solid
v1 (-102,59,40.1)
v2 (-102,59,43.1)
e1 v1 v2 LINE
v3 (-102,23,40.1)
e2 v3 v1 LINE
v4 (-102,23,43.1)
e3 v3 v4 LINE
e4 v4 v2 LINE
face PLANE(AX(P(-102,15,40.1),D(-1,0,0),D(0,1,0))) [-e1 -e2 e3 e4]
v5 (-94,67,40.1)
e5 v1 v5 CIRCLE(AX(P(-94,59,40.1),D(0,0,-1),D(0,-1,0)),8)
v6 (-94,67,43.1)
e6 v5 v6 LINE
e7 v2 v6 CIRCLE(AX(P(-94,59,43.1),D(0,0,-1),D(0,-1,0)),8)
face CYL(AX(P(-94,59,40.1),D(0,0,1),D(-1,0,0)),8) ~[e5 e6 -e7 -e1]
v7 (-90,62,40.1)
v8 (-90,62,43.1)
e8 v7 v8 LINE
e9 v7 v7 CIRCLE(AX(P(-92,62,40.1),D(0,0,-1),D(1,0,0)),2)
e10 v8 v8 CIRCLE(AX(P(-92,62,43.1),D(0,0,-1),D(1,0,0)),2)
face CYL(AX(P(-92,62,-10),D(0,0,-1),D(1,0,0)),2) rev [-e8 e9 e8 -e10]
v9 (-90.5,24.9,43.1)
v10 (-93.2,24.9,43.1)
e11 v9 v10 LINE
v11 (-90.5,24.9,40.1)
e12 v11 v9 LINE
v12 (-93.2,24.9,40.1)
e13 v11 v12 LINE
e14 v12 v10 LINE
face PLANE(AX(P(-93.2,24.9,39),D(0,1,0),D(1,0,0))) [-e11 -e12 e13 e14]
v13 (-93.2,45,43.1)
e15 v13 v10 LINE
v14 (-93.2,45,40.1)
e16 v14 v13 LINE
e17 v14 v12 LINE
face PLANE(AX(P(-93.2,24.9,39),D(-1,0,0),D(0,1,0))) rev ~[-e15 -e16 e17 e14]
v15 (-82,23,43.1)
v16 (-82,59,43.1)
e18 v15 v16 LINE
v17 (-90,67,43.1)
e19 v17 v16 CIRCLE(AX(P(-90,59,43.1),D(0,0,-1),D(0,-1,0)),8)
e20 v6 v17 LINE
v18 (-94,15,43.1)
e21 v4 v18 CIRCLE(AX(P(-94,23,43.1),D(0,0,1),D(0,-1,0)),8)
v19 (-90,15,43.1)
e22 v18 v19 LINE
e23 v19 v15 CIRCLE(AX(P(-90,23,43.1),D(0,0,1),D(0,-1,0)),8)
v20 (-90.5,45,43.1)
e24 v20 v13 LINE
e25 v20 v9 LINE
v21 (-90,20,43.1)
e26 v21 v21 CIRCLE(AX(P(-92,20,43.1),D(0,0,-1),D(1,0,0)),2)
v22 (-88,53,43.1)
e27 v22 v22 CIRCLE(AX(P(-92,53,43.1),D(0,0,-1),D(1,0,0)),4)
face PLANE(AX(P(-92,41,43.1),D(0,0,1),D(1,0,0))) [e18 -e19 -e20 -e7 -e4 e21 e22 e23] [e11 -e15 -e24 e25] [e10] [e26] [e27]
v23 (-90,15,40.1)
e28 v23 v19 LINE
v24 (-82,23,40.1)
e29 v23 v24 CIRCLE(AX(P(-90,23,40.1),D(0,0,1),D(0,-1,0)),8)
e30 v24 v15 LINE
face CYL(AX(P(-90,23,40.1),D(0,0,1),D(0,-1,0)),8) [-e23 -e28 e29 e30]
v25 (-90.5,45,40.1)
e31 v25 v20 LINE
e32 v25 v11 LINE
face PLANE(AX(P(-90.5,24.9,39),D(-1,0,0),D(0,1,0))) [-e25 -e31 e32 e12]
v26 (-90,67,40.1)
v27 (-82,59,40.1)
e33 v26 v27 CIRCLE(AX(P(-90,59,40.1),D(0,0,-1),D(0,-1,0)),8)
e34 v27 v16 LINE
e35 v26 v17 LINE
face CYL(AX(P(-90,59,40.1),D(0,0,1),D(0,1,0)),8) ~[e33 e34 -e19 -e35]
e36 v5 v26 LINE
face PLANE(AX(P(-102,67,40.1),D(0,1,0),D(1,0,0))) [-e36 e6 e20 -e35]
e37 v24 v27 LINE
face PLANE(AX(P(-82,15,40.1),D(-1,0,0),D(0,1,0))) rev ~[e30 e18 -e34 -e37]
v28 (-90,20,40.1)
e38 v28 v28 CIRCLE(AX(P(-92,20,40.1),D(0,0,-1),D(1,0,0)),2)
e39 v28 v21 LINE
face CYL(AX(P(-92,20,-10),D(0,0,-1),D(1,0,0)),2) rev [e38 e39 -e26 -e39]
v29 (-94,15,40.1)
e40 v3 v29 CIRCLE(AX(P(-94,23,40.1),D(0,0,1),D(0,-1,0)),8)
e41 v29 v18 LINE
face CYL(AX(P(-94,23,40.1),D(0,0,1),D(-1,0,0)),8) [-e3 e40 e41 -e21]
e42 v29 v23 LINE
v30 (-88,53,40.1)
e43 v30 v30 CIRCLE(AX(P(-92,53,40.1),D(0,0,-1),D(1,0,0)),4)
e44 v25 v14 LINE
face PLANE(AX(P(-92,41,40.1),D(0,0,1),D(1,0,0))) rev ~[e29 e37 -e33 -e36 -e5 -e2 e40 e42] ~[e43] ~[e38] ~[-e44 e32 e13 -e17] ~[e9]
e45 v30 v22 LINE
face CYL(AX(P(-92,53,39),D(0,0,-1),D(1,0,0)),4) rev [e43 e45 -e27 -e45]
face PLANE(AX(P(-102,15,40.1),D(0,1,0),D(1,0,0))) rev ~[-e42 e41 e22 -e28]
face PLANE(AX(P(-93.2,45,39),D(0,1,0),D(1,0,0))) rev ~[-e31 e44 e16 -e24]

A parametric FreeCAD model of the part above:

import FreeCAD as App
import Part
import Sketcher


def edges_at(feature, points):
    """Names of the edges that pass closest to the given points."""
    edges = feature.Shape.Edges
    near = lambda p: min(range(len(edges)), key=lambda i: edges[i].distToShape(Part.Vertex(*p))[0])
    return sorted({f"Edge{near(p) + 1}" for p in points})

doc = App.newDocument("Part")
params = doc.addObject("Spreadsheet::Sheet", "Params")
for row, (alias, value) in enumerate([
    ("sketch1_diameter", "4 mm"),
    ("pad1_length", "65 mm"),
    ("sketch2_diameter", "4 mm"),
    ("pad2_length", "65 mm"),
    ("sketch3_diameter", "8 mm"),
    ("pad3_length", "5 mm"),
    ("sketch4_width", "2.7 mm"),
    ("sketch4_height", "20.1 mm"),
    ("pad4_length", "5 mm"),
    ("sketch5_width", "20 mm"),
    ("sketch5_height", "52 mm"),
    ("pad5_length", "3 mm"),
    ("fillet_radius", "8 mm"),
], start=1):
    params.set(f"A{row}", alias)
    params.set(f"B{row}", "=" + value)
    params.setAlias(f"B{row}", alias)

body = doc.addObject("PartDesign::Body", "Body")

# Sketch on XY plane
sketch1 = body.newObject("Sketcher::SketchObject", "Sketch")
sketch1.AttachmentSupport = (doc.getObject("XY_Plane"), [""])
sketch1.MapMode = "FlatFace"
sketch1.AttachmentOffset = App.Placement(App.Vector(0, 0, -10), App.Rotation())
sketch1.addGeometry(Part.Circle(App.Vector(-90, -103, 0), App.Vector(0, 0, 1), 2), False)
sketch1.addConstraint(Sketcher.Constraint("Diameter", 0, 4.0))
sketch1.addConstraint(Sketcher.Constraint("DistanceX", 0, 3, -1, 1, 90.0))
sketch1.addConstraint(Sketcher.Constraint("DistanceY", 0, 3, -1, 1, 103.0))
sketch1.setExpression("Constraints[0]", "Params.sketch1_diameter")
pad1 = body.newObject("PartDesign::Pad", "Pad")
pad1.Profile = sketch1
pad1.setExpression("Length", "Params.pad1_length")
body2 = doc.addObject("PartDesign::Body", "Body001")
body2.AllowCompound = True

# Sketch on XY plane
sketch2 = body2.newObject("Sketcher::SketchObject", "Sketch001")
sketch2.AttachmentSupport = (doc.getObject("XY_Plane001"), [""])
sketch2.MapMode = "FlatFace"
sketch2.AttachmentOffset = App.Placement(App.Vector(0, 0, -10), App.Rotation())
sketch2.addGeometry(Part.Circle(App.Vector(-90, -61, 0), App.Vector(0, 0, 1), 2), False)
sketch2.addConstraint(Sketcher.Constraint("Diameter", 0, 4.0))
sketch2.addConstraint(Sketcher.Constraint("DistanceX", 0, 3, -1, 1, 90.0))
sketch2.addConstraint(Sketcher.Constraint("DistanceY", 0, 3, -1, 1, 61.0))
sketch2.setExpression("Constraints[0]", "Params.sketch2_diameter")
pad2 = body2.newObject("PartDesign::Pad", "Pad001")
pad2.Profile = sketch2
pad2.setExpression("Length", "Params.pad2_length")
doc.recompute()

boolean = body2.newObject("PartDesign::Boolean", "Boolean")
boolean.Type = "Fuse"
boolean.addObjects([body])
body3 = doc.addObject("PartDesign::Body", "Body002")
body3.AllowCompound = True
doc.recompute()

body2.Placement = App.Placement(App.Vector(-2, 0, 0), App.Rotation(App.Vector(0, 0, 1), 0))
boolean2 = body3.newObject("PartDesign::Boolean", "Boolean001")
boolean2.Type = "Fuse"
boolean2.addObjects([body2])
body4 = doc.addObject("PartDesign::Body", "Body003")

# Sketch on XY plane
sketch3 = body4.newObject("Sketcher::SketchObject", "Sketch002")
sketch3.AttachmentSupport = (doc.getObject("XY_Plane003"), [""])
sketch3.MapMode = "FlatFace"
sketch3.AttachmentOffset = App.Placement(App.Vector(0, 0, 39), App.Rotation())
sketch3.addGeometry(Part.Circle(App.Vector(-92, -70, 0), App.Vector(0, 0, 1), 4), False)
sketch3.addConstraint(Sketcher.Constraint("Diameter", 0, 8.0))
sketch3.addConstraint(Sketcher.Constraint("DistanceX", 0, 3, -1, 1, 92.0))
sketch3.addConstraint(Sketcher.Constraint("DistanceY", 0, 3, -1, 1, 70.0))
sketch3.setExpression("Constraints[0]", "Params.sketch3_diameter")
pad3 = body4.newObject("PartDesign::Pad", "Pad002")
pad3.Profile = sketch3
pad3.setExpression("Length", "Params.pad3_length")
body5 = doc.addObject("PartDesign::Body", "Body004")

# Sketch on XY plane
sketch4 = body5.newObject("Sketcher::SketchObject", "Sketch003")
sketch4.AttachmentSupport = (doc.getObject("XY_Plane004"), [""])
sketch4.MapMode = "FlatFace"
sketch4.AttachmentOffset = App.Placement(App.Vector(0, 0, 39), App.Rotation())
sketch4.addGeometry(Part.LineSegment(App.Vector(-93.2, -78, 0), App.Vector(-93.2, -98.1, 0)), False)
sketch4.addGeometry(Part.LineSegment(App.Vector(-93.2, -98.1, 0), App.Vector(-90.5, -98.1, 0)), False)
sketch4.addGeometry(Part.LineSegment(App.Vector(-90.5, -98.1, 0), App.Vector(-90.5, -78, 0)), False)
sketch4.addGeometry(Part.LineSegment(App.Vector(-90.5, -78, 0), App.Vector(-93.2, -78, 0)), False)
sketch4.addConstraint(Sketcher.Constraint("Coincident", 0, 2, 1, 1))
sketch4.addConstraint(Sketcher.Constraint("Coincident", 1, 2, 2, 1))
sketch4.addConstraint(Sketcher.Constraint("Coincident", 2, 2, 3, 1))
sketch4.addConstraint(Sketcher.Constraint("Coincident", 3, 2, 0, 1))
sketch4.addConstraint(Sketcher.Constraint("Vertical", 0))
sketch4.addConstraint(Sketcher.Constraint("Horizontal", 1))
sketch4.addConstraint(Sketcher.Constraint("Vertical", 2))
sketch4.addConstraint(Sketcher.Constraint("Horizontal", 3))
sketch4.addConstraint(Sketcher.Constraint("DistanceX", 1, 1, 1, 2, 2.7))
sketch4.addConstraint(Sketcher.Constraint("DistanceY", 0, 2, 0, 1, 20.1))
sketch4.addConstraint(Sketcher.Constraint("DistanceY", 2, 2, -1, 1, 78.0))
sketch4.addConstraint(Sketcher.Constraint("DistanceX", 0, 2, -1, 1, 93.2))
sketch4.setExpression("Constraints[8]", "Params.sketch4_width")
sketch4.setExpression("Constraints[9]", "Params.sketch4_height")
pad4 = body5.newObject("PartDesign::Pad", "Pad003")
pad4.Profile = sketch4
pad4.setExpression("Length", "Params.pad4_length")
body6 = doc.addObject("PartDesign::Body", "Body005")

# Sketch on XY plane
sketch5 = body6.newObject("Sketcher::SketchObject", "Sketch004")
sketch5.AttachmentSupport = (doc.getObject("XY_Plane005"), [""])
sketch5.MapMode = "FlatFace"
sketch5.AttachmentOffset = App.Placement(App.Vector(0, 0, 40.1), App.Rotation())
sketch5.addGeometry(Part.LineSegment(App.Vector(-102, -56, 0), App.Vector(-102, -108, 0)), False)
sketch5.addGeometry(Part.LineSegment(App.Vector(-102, -108, 0), App.Vector(-82, -108, 0)), False)
sketch5.addGeometry(Part.LineSegment(App.Vector(-82, -108, 0), App.Vector(-82, -56, 0)), False)
sketch5.addGeometry(Part.LineSegment(App.Vector(-82, -56, 0), App.Vector(-102, -56, 0)), False)
sketch5.addConstraint(Sketcher.Constraint("Coincident", 0, 2, 1, 1))
sketch5.addConstraint(Sketcher.Constraint("Coincident", 1, 2, 2, 1))
sketch5.addConstraint(Sketcher.Constraint("Coincident", 2, 2, 3, 1))
sketch5.addConstraint(Sketcher.Constraint("Coincident", 3, 2, 0, 1))
sketch5.addConstraint(Sketcher.Constraint("Vertical", 0))
sketch5.addConstraint(Sketcher.Constraint("Horizontal", 1))
sketch5.addConstraint(Sketcher.Constraint("Vertical", 2))
sketch5.addConstraint(Sketcher.Constraint("Horizontal", 3))
sketch5.addConstraint(Sketcher.Constraint("DistanceX", 1, 1, 1, 2, 20.0))
sketch5.addConstraint(Sketcher.Constraint("DistanceY", 0, 2, 0, 1, 52.0))
sketch5.addConstraint(Sketcher.Constraint("DistanceX", 0, 2, -1, 1, 102.0))
sketch5.addConstraint(Sketcher.Constraint("DistanceY", 0, 2, -1, 1, 108.0))
sketch5.setExpression("Constraints[8]", "Params.sketch5_width")
sketch5.setExpression("Constraints[9]", "Params.sketch5_height")
pad5 = body6.newObject("PartDesign::Pad", "Pad004")
pad5.Profile = sketch5
pad5.setExpression("Length", "Params.pad5_length")
doc.recompute()

boolean3 = body6.newObject("PartDesign::Boolean", "Boolean002")
boolean3.Type = "Cut"
boolean3.addObjects([body5])
doc.recompute()

fillet = body6.newObject("PartDesign::Fillet", "Fillet")
fillet.Base = (boolean3, edges_at(boolean3, [
    (-102, -108, 41.6),
    (-102, -56, 41.6),
    (-82, -108, 41.6),
    (-82, -56, 41.6),
]))
fillet.setExpression("Radius", "Params.fillet_radius")
doc.recompute()

boolean4 = body6.newObject("PartDesign::Boolean", "Boolean003")
boolean4.Type = "Cut"
boolean4.addObjects([body4])
doc.recompute()

boolean5 = body6.newObject("PartDesign::Boolean", "Boolean004")
boolean5.Type = "Cut"
boolean5.addObjects([body3])
body7 = doc.addObject("PartDesign::Body", "Body006")
doc.recompute()

body6.Placement = App.Placement(App.Vector(0, 123, 0), App.Rotation(App.Vector(0, 0, 1), 0))
boolean6 = body7.newObject("PartDesign::Boolean", "Boolean005")
boolean6.Type = "Fuse"
boolean6.addObjects([body6])

doc.recompute()
